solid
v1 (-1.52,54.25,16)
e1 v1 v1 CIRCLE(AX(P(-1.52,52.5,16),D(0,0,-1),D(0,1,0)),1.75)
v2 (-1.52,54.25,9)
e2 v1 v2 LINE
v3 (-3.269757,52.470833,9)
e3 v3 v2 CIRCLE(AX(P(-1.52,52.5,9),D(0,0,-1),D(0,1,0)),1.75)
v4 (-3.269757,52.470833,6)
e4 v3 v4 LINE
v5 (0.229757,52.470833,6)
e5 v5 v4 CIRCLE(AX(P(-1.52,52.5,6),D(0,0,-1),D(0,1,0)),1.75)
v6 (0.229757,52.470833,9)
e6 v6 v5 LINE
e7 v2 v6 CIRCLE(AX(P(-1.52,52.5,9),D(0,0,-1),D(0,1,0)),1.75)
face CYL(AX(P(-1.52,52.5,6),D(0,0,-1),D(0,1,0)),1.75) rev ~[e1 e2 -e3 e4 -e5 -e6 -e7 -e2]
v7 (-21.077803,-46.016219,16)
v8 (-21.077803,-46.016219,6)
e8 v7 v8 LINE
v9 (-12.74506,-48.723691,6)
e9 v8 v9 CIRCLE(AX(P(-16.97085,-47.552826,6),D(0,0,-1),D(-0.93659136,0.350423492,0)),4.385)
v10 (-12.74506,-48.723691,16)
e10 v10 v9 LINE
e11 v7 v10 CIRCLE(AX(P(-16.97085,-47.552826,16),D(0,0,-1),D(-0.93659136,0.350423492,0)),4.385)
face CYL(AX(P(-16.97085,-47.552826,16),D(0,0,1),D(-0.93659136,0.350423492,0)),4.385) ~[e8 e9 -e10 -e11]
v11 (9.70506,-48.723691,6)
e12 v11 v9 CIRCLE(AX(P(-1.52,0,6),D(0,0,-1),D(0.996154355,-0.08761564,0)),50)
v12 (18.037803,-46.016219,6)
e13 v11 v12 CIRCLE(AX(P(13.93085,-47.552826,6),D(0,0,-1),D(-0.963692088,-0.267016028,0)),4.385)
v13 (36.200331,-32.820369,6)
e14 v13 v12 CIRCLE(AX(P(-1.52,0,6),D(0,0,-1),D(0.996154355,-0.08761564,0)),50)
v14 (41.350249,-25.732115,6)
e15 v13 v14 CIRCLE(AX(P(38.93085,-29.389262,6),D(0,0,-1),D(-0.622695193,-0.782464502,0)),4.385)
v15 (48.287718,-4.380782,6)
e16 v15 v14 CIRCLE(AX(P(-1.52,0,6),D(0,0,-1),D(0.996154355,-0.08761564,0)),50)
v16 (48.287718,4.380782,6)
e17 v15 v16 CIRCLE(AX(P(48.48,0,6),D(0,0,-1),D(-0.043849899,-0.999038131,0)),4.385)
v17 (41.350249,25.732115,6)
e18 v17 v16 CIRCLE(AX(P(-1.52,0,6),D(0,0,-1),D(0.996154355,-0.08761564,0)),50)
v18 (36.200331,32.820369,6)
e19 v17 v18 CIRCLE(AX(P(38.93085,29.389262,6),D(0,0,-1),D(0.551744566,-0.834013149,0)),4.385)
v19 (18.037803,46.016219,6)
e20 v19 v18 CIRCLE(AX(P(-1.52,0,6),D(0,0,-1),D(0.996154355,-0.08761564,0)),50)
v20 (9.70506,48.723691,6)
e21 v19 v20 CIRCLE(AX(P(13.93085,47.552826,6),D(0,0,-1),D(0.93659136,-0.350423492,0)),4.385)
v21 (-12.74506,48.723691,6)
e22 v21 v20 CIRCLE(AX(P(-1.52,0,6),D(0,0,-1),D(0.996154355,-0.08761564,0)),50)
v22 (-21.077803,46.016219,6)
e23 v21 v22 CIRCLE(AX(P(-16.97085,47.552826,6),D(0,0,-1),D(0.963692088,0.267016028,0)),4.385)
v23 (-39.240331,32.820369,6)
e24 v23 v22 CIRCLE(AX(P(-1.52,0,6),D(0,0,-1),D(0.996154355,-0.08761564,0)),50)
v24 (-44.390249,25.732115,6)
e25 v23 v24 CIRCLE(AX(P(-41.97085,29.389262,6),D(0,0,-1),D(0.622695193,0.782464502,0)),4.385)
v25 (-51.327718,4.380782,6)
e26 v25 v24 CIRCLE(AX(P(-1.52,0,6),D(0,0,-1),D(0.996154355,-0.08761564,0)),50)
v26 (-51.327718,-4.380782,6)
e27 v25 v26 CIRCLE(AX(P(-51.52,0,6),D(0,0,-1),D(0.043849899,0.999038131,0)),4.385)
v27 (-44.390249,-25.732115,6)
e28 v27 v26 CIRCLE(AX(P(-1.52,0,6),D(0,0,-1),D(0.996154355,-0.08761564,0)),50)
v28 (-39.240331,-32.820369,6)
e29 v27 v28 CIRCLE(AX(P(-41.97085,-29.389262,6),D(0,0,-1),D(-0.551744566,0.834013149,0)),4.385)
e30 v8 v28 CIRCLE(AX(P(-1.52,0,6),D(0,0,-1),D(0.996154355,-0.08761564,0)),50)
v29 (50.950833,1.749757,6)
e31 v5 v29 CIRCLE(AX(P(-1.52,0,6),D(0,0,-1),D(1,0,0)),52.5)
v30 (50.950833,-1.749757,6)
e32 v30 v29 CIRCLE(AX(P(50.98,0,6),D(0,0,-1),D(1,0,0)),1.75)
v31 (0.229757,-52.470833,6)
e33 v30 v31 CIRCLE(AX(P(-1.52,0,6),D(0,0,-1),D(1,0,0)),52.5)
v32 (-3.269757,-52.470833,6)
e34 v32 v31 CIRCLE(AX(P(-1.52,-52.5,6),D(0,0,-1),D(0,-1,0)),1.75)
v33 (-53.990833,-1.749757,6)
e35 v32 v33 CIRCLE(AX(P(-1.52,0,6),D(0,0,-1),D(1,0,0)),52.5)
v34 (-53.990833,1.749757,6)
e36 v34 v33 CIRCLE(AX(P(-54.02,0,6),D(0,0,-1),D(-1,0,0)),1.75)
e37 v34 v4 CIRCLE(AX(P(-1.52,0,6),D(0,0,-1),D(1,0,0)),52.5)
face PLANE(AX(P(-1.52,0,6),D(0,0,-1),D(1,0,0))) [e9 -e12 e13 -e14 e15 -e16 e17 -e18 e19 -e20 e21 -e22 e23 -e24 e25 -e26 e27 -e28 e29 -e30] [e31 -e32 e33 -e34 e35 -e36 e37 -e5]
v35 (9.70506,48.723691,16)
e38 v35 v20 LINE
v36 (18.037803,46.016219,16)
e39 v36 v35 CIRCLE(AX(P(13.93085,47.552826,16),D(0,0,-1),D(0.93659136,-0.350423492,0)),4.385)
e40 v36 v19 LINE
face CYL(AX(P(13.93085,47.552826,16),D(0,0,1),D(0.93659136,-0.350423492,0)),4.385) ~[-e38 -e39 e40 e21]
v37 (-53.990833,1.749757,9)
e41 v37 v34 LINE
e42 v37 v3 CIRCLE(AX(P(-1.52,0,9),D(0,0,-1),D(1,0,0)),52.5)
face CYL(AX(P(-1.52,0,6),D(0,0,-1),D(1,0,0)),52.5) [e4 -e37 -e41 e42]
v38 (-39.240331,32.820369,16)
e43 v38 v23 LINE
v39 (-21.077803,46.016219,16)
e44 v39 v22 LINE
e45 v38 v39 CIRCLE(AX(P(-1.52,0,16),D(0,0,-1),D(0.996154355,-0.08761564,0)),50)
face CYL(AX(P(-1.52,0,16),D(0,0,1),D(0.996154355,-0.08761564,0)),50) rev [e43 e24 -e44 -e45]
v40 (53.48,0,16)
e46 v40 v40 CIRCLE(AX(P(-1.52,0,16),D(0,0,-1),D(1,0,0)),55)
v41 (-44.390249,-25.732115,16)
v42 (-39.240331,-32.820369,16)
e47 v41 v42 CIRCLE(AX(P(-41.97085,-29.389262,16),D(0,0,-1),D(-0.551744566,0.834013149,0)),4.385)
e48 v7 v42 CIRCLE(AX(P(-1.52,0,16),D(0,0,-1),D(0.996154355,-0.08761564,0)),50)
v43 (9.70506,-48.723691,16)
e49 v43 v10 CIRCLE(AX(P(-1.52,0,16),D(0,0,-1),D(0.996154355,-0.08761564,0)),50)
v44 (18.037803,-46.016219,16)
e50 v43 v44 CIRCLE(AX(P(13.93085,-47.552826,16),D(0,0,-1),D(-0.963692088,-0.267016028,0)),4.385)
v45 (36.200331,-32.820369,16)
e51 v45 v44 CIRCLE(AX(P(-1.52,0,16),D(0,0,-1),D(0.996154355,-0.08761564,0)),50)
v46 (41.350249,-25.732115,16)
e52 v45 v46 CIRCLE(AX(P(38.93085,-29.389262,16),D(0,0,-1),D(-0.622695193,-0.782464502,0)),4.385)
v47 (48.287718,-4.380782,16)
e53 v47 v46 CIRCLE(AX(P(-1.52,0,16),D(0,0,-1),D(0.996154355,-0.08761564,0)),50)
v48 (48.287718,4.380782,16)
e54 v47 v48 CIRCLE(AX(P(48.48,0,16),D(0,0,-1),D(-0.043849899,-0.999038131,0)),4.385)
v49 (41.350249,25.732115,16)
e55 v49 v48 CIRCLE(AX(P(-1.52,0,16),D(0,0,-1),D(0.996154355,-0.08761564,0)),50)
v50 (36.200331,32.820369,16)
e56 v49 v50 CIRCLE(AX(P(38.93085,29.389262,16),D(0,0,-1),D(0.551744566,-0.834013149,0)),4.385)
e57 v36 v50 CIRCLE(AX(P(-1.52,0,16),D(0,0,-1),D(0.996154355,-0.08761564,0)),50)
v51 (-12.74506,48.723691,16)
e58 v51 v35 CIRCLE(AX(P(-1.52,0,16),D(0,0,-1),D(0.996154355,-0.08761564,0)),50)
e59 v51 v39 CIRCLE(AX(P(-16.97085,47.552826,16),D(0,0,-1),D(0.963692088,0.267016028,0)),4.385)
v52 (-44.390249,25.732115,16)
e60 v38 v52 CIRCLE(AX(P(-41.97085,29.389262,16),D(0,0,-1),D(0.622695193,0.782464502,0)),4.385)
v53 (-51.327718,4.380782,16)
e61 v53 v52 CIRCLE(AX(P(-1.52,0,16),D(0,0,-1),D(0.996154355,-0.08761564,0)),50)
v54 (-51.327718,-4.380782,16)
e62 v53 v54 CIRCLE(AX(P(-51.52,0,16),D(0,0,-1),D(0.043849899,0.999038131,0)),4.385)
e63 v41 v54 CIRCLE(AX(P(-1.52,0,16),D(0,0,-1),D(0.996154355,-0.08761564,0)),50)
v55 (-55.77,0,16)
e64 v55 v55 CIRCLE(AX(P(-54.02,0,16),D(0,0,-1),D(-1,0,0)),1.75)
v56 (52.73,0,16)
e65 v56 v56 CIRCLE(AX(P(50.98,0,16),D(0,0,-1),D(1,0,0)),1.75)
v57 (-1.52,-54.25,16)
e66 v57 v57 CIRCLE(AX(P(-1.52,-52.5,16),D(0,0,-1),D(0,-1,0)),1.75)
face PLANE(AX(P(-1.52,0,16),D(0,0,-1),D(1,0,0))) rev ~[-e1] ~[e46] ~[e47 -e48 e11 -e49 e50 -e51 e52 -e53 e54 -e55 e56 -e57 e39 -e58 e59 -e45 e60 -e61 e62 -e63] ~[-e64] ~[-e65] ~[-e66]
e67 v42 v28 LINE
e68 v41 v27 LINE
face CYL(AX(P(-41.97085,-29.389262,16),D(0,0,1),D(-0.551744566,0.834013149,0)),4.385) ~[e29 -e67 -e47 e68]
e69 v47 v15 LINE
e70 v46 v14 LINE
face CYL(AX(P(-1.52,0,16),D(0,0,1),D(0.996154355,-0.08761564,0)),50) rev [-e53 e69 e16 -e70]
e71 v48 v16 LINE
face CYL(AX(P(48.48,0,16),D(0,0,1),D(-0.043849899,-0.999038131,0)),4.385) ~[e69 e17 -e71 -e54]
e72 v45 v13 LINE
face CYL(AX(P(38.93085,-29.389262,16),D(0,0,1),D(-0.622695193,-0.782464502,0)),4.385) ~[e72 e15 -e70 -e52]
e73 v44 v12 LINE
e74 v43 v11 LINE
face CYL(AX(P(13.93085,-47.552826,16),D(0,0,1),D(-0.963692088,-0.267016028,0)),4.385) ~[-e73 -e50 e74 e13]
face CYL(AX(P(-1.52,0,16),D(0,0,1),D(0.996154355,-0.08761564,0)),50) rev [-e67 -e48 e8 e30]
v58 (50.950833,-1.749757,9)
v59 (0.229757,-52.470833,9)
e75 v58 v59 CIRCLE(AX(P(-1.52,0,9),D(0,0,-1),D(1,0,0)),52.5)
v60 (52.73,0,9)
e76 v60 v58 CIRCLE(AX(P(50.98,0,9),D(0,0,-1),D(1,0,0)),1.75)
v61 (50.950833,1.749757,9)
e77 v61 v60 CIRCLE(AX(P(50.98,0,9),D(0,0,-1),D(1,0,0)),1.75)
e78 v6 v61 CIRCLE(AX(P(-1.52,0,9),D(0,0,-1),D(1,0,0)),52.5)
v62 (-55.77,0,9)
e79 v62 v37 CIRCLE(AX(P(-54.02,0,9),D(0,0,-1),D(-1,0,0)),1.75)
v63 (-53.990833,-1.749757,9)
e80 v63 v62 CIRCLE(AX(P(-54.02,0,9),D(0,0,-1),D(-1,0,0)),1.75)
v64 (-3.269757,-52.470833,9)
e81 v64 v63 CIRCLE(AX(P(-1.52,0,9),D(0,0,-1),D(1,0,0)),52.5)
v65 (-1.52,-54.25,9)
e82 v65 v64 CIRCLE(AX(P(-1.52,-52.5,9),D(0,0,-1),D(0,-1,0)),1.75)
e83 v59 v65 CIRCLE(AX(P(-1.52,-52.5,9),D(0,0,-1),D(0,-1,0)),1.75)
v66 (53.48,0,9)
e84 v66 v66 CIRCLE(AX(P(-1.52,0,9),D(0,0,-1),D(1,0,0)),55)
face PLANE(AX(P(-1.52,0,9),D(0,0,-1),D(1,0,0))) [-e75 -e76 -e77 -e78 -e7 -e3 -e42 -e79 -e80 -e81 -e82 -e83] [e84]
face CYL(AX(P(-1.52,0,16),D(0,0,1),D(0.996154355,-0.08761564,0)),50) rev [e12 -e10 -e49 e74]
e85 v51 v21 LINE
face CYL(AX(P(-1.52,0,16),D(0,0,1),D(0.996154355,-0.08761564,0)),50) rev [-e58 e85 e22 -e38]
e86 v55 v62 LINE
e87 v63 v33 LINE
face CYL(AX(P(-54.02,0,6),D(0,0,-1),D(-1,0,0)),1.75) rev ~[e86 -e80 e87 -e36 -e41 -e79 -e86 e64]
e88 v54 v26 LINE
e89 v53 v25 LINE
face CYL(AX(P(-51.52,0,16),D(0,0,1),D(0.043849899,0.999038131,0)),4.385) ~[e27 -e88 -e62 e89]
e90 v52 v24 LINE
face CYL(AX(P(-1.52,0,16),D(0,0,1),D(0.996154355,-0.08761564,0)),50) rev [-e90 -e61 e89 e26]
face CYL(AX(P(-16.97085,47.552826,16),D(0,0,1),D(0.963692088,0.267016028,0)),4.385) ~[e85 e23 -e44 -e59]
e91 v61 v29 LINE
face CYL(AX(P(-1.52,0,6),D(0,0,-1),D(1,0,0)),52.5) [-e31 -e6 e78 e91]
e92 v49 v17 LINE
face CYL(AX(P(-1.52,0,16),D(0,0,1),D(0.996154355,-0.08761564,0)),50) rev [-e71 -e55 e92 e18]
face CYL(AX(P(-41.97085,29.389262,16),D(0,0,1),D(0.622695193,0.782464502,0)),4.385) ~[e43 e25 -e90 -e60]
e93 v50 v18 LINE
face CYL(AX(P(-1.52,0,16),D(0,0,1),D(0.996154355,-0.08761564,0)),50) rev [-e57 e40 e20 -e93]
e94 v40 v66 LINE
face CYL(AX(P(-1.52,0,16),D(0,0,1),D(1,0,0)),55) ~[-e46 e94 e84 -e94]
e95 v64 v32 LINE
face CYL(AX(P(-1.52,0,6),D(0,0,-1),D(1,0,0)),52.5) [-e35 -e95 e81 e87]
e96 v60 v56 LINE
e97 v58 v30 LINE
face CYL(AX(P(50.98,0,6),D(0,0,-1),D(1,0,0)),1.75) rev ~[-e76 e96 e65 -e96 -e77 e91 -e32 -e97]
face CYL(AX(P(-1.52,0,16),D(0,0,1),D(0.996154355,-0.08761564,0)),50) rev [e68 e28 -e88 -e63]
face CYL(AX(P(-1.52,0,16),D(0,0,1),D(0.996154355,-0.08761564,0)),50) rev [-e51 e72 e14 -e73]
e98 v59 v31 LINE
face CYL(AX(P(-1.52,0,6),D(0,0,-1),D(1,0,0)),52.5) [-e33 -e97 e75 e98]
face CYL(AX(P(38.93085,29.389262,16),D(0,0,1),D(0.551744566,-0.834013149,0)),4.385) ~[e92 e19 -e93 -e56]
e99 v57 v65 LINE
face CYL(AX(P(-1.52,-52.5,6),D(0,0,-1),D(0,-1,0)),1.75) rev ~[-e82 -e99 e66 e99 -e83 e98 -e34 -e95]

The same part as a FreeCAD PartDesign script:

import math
import FreeCAD as App
import Part
import Sketcher
Q = App.Units.Quantity

doc = App.newDocument("Part")
body = doc.addObject("PartDesign::Body", "Body")

# Sketch on XZ plane
sketch1 = body.newObject("Sketcher::SketchObject", "Sketch")
sketch1.AttachmentSupport = (doc.getObject("XZ_Plane"), [""])
sketch1.MapMode = "FlatFace"
sketch1.addGeometry([
    Part.Circle(App.Vector(0, 0, 0), App.Vector(0, 0, 1), 55),
    Part.ArcOfCircle(Part.Circle(App.Vector(0, 0, 0), App.Vector(0, 0, 1), 50), math.radians(5), math.radians(355)),
    Part.ArcOfCircle(Part.Circle(App.Vector(50, 0, 0), App.Vector(0, 0, 1), 4.4), math.radians(93), math.radians(267)),
], False)
sketch1.addConstraint([
    Sketcher.Constraint("Coincident", 1, 1, 2, 1),
    Sketcher.Constraint("Coincident", 2, 2, 1, 2),
    Sketcher.Constraint("Coincident", 0, 3, -1, 1),
    Sketcher.Constraint("Coincident", 1, 3, -1, 1),
    Sketcher.Constraint("PointOnObject", 2, 3, -1),
    Sketcher.Constraint("Diameter", 0, Q("110 mm")),
    Sketcher.Constraint("Radius", 1, Q("50 mm")),
    Sketcher.Constraint("DistanceX", -1, 1, 2, 3, Q("50 mm")),
    Sketcher.Constraint("Radius", 2, Q("4.385 mm")),
])
pad1 = body.newObject("PartDesign::Pad", "Pad")
pad1.Profile = sketch1
pad1.Length = 10
doc.recompute()

polarpattern = body.newObject("PartDesign::PolarPattern", "PolarPattern")
polarpattern.Originals = [pad1]
polarpattern.Axis = (doc.getObject("Y_Axis"), [""])
polarpattern.Angle = 360
polarpattern.Occurrences = 10
body.Tip = polarpattern

# Sketch on XZ plane
sketch2 = body.newObject("Sketcher::SketchObject", "Sketch001")
sketch2.AttachmentSupport = (doc.getObject("XZ_Plane"), [""])
sketch2.MapMode = "FlatFace"
sketch2.AttachmentOffset = App.Placement(App.Vector(0, 0, 10), App.Rotation())
sketch2.addGeometry([
    Part.Circle(App.Vector(0, 0, 0), App.Vector(0, 0, 1), 55),
    Part.Circle(App.Vector(0, 0, 0), App.Vector(0, 0, 1), 52),
], False)
sketch2.addConstraint([
    Sketcher.Constraint("Coincident", 0, 3, -1, 1),
    Sketcher.Constraint("Coincident", 1, 3, -1, 1),
    Sketcher.Constraint("Diameter", 0, Q("110 mm")),
    Sketcher.Constraint("Diameter", 1, Q("105 mm")),
])
pocket1 = body.newObject("PartDesign::Pocket", "Pocket")
pocket1.Profile = sketch2
pocket1.Length = 3

# Sketch on XZ plane
sketch3 = body.newObject("Sketcher::SketchObject", "Sketch002")
sketch3.AttachmentSupport = (doc.getObject("XZ_Plane"), [""])
sketch3.MapMode = "FlatFace"
sketch3.AttachmentOffset = App.Placement(App.Vector(0, 0, 10), App.Rotation())
sketch3.addGeometry(Part.Circle(App.Vector(52.5, 0, 0), App.Vector(0, 0, 1), 1.8), False)
sketch3.addConstraint([
    Sketcher.Constraint("PointOnObject", 0, 3, -1),
    Sketcher.Constraint("Diameter", 0, Q("3.5 mm")),
    Sketcher.Constraint("DistanceX", -1, 1, 0, 3, Q("52.5 mm")),
])
pocket2 = body.newObject("PartDesign::Pocket", "Pocket001")
pocket2.Profile = sketch3
pocket2.Type = "ThroughAll"
pocket2.Midplane = True
doc.recompute()

polarpattern2 = body.newObject("PartDesign::PolarPattern", "PolarPattern001")
polarpattern2.Originals = [pocket2]
polarpattern2.Axis = (doc.getObject("Y_Axis"), [""])
polarpattern2.Angle = 360
polarpattern2.Occurrences = 4
body.Tip = polarpattern2
body2 = doc.addObject("PartDesign::Body", "Body001")
doc.recompute()

body.Placement = App.Placement(App.Vector(-1.52, 0, 16), App.Rotation(App.Vector(1, 0, 0), 90))
boolean = body2.newObject("PartDesign::Boolean", "Boolean")
boolean.Type = "Fuse"
boolean.addObjects([body])

doc.recompute()
